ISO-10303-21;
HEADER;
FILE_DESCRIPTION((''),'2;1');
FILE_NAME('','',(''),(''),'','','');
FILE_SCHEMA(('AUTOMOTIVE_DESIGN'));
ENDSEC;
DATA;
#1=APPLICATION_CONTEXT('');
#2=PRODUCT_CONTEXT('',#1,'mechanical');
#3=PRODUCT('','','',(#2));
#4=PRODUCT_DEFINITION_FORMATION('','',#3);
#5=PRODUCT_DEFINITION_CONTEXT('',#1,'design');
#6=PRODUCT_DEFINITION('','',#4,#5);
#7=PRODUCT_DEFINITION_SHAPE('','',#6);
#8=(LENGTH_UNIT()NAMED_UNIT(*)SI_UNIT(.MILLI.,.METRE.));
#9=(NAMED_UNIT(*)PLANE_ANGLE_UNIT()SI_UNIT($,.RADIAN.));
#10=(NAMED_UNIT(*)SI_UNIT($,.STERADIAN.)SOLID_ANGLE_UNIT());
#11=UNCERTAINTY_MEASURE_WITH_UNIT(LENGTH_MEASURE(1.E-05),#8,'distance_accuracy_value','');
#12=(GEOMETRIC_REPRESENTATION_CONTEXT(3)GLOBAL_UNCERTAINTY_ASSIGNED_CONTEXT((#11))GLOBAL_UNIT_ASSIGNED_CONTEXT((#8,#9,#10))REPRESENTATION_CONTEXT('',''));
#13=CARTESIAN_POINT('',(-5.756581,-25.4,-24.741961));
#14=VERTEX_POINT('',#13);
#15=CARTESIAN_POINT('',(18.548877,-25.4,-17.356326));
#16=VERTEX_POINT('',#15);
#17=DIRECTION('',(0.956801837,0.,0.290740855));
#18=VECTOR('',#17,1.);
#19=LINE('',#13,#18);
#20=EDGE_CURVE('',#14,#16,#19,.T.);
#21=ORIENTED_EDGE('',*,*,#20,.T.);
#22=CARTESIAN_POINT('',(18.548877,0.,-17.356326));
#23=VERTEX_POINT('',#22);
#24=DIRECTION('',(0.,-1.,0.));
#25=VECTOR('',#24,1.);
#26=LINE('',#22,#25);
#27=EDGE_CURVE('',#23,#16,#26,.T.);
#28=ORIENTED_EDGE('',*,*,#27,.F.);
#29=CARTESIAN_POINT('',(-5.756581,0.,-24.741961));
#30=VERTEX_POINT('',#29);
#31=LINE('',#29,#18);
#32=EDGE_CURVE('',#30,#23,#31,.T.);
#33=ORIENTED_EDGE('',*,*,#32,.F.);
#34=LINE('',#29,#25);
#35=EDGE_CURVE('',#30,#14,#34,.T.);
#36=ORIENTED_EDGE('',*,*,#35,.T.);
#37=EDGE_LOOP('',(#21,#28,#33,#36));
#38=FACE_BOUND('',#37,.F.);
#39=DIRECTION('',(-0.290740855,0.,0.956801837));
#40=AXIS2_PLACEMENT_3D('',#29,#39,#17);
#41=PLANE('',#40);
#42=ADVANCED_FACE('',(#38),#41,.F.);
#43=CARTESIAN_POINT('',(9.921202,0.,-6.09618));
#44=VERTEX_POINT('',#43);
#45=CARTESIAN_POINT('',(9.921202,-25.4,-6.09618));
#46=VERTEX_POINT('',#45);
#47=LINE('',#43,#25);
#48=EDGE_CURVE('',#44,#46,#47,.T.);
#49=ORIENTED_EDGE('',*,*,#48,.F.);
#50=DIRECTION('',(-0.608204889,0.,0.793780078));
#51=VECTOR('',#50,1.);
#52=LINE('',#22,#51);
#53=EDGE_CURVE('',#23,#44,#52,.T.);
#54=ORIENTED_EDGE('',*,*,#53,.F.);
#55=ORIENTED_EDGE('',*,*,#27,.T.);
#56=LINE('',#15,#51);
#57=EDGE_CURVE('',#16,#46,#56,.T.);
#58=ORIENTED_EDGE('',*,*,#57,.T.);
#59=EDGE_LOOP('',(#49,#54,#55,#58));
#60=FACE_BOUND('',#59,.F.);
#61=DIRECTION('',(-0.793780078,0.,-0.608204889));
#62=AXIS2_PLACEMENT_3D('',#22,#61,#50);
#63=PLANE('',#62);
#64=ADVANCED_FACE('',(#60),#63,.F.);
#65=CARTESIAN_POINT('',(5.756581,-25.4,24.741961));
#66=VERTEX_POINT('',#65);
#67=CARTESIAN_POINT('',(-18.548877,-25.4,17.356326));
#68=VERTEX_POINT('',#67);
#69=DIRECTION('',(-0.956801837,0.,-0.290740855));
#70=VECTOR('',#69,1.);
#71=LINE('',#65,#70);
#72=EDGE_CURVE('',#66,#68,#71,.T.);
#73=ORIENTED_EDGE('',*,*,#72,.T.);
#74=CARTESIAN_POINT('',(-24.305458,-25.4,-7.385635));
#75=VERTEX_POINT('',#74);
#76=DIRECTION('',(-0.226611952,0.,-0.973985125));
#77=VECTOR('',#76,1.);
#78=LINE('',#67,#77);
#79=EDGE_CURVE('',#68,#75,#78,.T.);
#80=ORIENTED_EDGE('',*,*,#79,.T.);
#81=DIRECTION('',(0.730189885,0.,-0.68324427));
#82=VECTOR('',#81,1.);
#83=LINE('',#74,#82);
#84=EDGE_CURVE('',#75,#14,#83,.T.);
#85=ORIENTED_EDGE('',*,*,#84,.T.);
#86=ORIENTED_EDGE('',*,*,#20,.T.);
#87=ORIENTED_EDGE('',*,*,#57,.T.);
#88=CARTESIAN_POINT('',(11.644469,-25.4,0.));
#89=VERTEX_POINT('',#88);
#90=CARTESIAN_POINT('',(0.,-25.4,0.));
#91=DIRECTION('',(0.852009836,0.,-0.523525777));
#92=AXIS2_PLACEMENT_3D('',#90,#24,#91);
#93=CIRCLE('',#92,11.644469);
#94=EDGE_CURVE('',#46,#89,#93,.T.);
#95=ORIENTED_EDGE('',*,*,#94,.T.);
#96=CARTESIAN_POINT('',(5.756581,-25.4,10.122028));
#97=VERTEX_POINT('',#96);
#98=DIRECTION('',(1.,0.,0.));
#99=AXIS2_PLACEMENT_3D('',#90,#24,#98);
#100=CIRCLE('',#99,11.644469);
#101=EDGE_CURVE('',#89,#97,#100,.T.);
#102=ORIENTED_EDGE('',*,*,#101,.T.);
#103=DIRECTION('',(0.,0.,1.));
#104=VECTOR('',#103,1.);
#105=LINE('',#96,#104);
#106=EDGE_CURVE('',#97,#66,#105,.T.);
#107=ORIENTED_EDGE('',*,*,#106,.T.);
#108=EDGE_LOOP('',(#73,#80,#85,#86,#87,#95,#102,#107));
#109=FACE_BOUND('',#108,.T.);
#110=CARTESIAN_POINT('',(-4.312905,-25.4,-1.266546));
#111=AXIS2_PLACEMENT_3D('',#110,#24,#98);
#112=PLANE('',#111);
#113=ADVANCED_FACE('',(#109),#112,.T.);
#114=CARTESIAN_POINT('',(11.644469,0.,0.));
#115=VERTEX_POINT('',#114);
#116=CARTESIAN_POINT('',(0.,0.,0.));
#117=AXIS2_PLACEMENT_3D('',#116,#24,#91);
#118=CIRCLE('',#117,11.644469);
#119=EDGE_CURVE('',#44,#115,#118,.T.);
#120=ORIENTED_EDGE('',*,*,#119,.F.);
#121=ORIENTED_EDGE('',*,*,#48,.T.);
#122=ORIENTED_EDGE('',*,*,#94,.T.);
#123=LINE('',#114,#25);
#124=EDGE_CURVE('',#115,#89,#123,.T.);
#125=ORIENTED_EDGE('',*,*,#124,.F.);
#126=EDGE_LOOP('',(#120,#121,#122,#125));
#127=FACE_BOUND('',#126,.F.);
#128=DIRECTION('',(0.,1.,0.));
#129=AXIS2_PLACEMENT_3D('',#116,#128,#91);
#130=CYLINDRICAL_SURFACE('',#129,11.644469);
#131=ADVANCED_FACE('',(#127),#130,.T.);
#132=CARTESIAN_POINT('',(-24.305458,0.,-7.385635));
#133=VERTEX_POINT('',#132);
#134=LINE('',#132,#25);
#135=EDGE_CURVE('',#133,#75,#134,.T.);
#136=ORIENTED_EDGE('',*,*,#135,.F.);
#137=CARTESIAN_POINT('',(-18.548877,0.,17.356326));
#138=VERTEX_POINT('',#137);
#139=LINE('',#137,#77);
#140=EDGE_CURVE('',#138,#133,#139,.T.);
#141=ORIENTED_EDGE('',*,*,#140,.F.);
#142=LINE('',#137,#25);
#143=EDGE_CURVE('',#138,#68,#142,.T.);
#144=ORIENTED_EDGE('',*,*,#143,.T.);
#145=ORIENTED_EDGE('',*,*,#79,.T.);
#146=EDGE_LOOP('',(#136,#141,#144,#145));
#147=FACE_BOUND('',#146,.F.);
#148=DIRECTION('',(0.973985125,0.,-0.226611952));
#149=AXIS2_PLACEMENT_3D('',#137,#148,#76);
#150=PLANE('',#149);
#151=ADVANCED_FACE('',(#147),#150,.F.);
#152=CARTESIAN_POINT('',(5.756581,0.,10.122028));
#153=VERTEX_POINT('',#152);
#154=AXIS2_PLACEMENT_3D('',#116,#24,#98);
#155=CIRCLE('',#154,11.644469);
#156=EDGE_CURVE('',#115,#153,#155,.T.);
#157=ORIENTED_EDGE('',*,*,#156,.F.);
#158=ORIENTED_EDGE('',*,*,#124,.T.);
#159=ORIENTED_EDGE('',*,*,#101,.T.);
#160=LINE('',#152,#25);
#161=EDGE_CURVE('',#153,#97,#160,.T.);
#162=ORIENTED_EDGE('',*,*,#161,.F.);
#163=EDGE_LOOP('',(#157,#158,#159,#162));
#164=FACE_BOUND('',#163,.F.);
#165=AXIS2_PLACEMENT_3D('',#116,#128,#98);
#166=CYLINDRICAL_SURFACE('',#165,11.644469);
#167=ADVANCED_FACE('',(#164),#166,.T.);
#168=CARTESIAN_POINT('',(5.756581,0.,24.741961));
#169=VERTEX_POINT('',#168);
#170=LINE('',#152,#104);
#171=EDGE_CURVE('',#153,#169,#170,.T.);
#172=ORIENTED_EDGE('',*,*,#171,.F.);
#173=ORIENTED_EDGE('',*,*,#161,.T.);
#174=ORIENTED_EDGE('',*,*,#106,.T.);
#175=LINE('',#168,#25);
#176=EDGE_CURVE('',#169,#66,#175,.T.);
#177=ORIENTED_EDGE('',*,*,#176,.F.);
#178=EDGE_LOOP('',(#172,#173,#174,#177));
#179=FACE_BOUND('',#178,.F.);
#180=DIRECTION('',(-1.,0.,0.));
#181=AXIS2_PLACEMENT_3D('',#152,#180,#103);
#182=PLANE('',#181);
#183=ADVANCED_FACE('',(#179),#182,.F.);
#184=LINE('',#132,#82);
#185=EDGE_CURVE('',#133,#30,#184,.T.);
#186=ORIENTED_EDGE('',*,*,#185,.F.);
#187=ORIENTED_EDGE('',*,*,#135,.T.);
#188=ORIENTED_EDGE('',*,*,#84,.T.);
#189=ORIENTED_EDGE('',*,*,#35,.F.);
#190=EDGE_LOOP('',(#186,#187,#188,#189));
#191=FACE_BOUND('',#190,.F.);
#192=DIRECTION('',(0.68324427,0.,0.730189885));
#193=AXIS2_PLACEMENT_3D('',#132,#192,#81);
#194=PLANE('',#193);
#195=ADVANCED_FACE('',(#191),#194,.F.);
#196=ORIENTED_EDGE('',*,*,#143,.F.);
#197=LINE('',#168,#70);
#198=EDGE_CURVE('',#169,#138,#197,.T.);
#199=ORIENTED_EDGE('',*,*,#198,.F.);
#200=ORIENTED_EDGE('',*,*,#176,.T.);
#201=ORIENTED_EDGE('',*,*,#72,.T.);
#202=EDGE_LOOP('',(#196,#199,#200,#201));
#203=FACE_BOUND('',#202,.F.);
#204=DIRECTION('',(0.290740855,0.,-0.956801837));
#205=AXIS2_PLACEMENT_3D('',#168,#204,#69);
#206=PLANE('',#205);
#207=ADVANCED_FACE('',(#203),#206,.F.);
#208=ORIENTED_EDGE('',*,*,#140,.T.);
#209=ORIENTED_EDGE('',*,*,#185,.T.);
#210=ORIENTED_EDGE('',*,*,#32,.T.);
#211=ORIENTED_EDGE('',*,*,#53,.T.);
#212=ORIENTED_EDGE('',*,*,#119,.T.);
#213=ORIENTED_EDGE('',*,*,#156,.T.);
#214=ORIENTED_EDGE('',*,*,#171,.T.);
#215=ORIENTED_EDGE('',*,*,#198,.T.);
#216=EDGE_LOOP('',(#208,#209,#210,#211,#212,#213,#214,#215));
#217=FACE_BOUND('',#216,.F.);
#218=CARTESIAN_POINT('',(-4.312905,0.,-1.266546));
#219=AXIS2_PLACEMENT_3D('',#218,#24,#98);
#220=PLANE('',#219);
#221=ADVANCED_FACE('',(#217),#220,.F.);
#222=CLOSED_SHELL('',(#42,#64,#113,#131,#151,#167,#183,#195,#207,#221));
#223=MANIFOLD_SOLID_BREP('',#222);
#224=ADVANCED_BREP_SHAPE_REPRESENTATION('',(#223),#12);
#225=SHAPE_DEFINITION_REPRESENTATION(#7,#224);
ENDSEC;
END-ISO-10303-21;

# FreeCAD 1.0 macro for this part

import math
import FreeCAD as App
import Part
import Sketcher

doc = App.newDocument("Part")
params = doc.addObject("Spreadsheet::Sheet", "Params")
for row, (alias, value) in enumerate([
    ("pad1_length", "1 in"),
], start=1):
    params.set(f"A{row}", alias)
    params.set(f"B{row}", "=" + value)
    params.setAlias(f"B{row}", alias)

body = doc.addObject("PartDesign::Body", "Body")

sketch1 = doc.addObject("Sketcher::SketchObject", "Sketch")
body.addObject(sketch1)
sketch1.AttachmentSupport = (doc.XZ_Plane, [""])
sketch1.MapMode = "FlatFace"
sketch1.addGeometry(Part.LineSegment(App.Vector(6, 25, 0), App.Vector(-19, 17, 0)), False)
sketch1.addGeometry(Part.LineSegment(App.Vector(-19, 17, 0), App.Vector(-24, -7, 0)), False)
sketch1.addGeometry(Part.LineSegment(App.Vector(-24, -7, 0), App.Vector(-6, -25, 0)), False)
sketch1.addGeometry(Part.LineSegment(App.Vector(-6, -25, 0), App.Vector(19, -17, 0)), False)
sketch1.addGeometry(Part.LineSegment(App.Vector(19, -17, 0), App.Vector(10, -6, 0)), False)
sketch1.addGeometry(Part.ArcOfCircle(Part.Circle(App.Vector(0, 0, 0), App.Vector(0, 0, 1), 12), math.radians(-32), math.radians(0)), False)
sketch1.addGeometry(Part.ArcOfCircle(Part.Circle(App.Vector(0, 0, 0), App.Vector(0, 0, 1), 12), math.radians(0), math.radians(60)), False)
sketch1.addGeometry(Part.LineSegment(App.Vector(6, 10, 0), App.Vector(6, 25, 0)), False)
sketch1.addConstraint(Sketcher.Constraint("Coincident", 0, 2, 1, 1))
sketch1.addConstraint(Sketcher.Constraint("Coincident", 1, 2, 2, 1))
sketch1.addConstraint(Sketcher.Constraint("Coincident", 2, 2, 3, 1))
sketch1.addConstraint(Sketcher.Constraint("Coincident", 3, 2, 4, 1))
sketch1.addConstraint(Sketcher.Constraint("Coincident", 4, 2, 5, 1))
sketch1.addConstraint(Sketcher.Constraint("Tangent", 5, 2, 6, 1))
sketch1.addConstraint(Sketcher.Constraint("Coincident", 6, 2, 7, 1))
sketch1.addConstraint(Sketcher.Constraint("Coincident", 7, 2, 0, 1))
sketch1.addConstraint(Sketcher.Constraint("Vertical", 7))
sketch1.addConstraint(Sketcher.Constraint("Coincident", 5, 3, -1, 1))
sketch1.addConstraint(Sketcher.Constraint("Equal", 5, 6))
sketch1.addConstraint(Sketcher.Constraint("Symmetric", 0, 2, 3, 2, -1, 1))
sketch1.addConstraint(Sketcher.Constraint("Symmetric", 2, 2, 7, 2, -1, 1))
sketch1.addConstraint(Sketcher.Constraint("PointOnObject", 5, 2, -1))
sketch1.addConstraint(Sketcher.Constraint("Equal", 0, 1))
sketch1.addConstraint(Sketcher.Constraint("Equal", 1, 2))
sketch1.addConstraint(Sketcher.Constraint("Radius", 5, 11.644469))
sketch1.addConstraint(Sketcher.Constraint("DistanceY", 6, 2, 0, 2, 7.234298))
sketch1.addConstraint(Sketcher.Constraint("DistanceY", 7, 1, 7, 2, 14.619934))
sketch1.addConstraint(Sketcher.Constraint("DistanceX", 2, 2, -1, 1, 5.756581))
sketch1.addConstraint(Sketcher.Constraint("DistanceY", 4, 2, -1, 1, 6.09618))
sketch1.addConstraint(Sketcher.Constraint("DistanceX", 1, 2, 0, 2, 5.756581))
pad1 = doc.addObject("PartDesign::Pad", "Pad")
body.addObject(pad1)
pad1.Profile = sketch1
pad1.setExpression("Length", "Params.pad1_length")

doc.recompute()
